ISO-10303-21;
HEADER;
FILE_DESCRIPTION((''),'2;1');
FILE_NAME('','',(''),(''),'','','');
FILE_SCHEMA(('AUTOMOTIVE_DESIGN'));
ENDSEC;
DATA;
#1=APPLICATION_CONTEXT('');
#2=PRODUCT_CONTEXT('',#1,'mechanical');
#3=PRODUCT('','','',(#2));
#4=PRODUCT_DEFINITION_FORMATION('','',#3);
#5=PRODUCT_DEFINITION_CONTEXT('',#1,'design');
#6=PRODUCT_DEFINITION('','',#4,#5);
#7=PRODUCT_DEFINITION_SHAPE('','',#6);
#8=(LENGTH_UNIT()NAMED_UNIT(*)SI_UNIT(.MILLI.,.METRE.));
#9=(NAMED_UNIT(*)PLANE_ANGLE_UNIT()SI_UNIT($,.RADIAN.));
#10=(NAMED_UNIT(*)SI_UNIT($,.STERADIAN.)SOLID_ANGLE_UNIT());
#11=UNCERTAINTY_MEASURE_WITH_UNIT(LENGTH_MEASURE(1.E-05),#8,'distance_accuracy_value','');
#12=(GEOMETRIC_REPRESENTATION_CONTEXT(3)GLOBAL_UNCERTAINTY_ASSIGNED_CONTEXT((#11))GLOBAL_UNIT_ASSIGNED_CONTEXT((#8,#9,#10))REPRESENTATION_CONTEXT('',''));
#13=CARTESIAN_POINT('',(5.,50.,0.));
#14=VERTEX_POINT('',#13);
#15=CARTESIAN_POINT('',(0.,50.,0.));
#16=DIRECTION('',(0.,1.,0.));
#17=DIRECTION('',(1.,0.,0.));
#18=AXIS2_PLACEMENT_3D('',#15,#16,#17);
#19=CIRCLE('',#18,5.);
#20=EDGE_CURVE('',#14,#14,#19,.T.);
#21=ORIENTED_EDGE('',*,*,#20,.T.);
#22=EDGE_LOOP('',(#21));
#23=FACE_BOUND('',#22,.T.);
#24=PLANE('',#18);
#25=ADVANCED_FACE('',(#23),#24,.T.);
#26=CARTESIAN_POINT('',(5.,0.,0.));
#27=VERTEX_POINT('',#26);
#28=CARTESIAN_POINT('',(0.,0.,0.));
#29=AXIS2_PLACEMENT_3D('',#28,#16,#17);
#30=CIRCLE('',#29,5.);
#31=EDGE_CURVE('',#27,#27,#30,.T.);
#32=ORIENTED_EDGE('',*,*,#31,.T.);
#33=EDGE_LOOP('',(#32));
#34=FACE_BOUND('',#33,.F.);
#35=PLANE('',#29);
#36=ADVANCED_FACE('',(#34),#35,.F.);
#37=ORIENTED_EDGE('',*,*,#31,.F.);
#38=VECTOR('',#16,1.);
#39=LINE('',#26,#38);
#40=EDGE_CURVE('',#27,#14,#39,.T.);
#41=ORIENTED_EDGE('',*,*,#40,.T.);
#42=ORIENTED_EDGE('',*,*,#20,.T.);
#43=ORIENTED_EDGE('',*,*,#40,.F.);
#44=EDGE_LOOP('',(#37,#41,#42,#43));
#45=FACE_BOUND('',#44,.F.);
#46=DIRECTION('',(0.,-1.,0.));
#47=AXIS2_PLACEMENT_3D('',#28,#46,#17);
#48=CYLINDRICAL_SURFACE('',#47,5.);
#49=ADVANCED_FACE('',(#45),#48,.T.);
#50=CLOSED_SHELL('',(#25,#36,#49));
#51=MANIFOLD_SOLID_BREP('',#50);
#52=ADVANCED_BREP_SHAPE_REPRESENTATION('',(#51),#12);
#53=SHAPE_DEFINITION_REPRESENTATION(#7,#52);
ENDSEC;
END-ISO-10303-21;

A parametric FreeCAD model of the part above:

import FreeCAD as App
import Part
import Sketcher

doc = App.newDocument("Part")
body = doc.addObject("PartDesign::Body", "Body")

sketch1 = body.newObject("Sketcher::SketchObject", "Sketch")
sketch1.AttachmentSupport = (doc.getObject("XZ_Plane"), [""])
sketch1.MapMode = "FlatFace"
sketch1.addGeometry(Part.Circle(App.Vector(0, 0, 0), App.Vector(0, 0, 1), 5), False)
sketch1.addConstraint([
    Sketcher.Constraint("Coincident", 0, 3, -1, 1),
    Sketcher.Constraint("Diameter", 0, 10.0),
])
pad1 = body.newObject("PartDesign::Pad", "Pad")
pad1.Profile = sketch1
pad1.Length = 50
pad1.Reversed = True

doc.recompute()
